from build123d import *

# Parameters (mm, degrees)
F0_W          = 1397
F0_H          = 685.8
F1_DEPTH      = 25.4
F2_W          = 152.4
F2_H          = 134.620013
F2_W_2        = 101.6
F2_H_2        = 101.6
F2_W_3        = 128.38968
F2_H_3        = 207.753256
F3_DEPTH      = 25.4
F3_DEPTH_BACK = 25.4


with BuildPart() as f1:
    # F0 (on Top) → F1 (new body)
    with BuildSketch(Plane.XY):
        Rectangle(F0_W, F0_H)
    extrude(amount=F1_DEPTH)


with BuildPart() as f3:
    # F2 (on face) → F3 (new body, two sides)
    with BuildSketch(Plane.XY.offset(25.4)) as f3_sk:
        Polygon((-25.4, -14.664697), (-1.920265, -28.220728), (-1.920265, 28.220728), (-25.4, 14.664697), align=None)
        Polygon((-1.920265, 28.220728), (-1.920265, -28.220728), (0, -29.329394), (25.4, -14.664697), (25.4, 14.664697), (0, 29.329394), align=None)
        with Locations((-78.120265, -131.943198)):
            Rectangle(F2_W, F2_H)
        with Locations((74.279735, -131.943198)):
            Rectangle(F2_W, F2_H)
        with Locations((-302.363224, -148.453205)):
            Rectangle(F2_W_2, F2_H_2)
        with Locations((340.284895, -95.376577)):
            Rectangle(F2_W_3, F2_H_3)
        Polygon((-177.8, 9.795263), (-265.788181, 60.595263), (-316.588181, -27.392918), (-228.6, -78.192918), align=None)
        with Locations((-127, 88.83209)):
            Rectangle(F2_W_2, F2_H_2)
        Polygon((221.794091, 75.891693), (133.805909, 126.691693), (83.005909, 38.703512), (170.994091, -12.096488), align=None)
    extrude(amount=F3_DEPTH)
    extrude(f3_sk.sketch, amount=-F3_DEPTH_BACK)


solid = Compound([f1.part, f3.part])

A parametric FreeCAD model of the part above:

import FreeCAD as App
import Part
import Sketcher
Q = App.Units.Quantity


def add_polygon(sketch, points):
    """Adds a closed chain of lines whose ends are joined by coincident constraints."""
    first, n = sketch.GeometryCount, len(points)
    for a, b in zip(points, points[1:] + points[:1]):
        sketch.addGeometry(Part.LineSegment(App.Vector(*a, 0), App.Vector(*b, 0)), False)
    for i in range(n):
        sketch.addConstraint(Sketcher.Constraint("Coincident", first + i, 2, first + (i + 1) % n, 1))

doc = App.newDocument("Part")
body = doc.addObject("PartDesign::Body", "Body")

# Sketch on XY plane
sketch1 = doc.addObject("Sketcher::SketchObject", "Sketch")
body.addObject(sketch1)
sketch1.AttachmentSupport = (doc.XY_Plane, [""])
sketch1.MapMode = "FlatFace"
add_polygon(sketch1, [(-698, 343), (-698, -343), (698, -343), (698, 343)])  # lines 0-3
sketch1.addConstraint(Sketcher.Constraint("Vertical", 0))
sketch1.addConstraint(Sketcher.Constraint("Horizontal", 1))
sketch1.addConstraint(Sketcher.Constraint("Vertical", 2))
sketch1.addConstraint(Sketcher.Constraint("Horizontal", 3))
sketch1.addConstraint(Sketcher.Constraint("Symmetric", 0, 2, 2, 2, -1, 1))
sketch1.addConstraint(Sketcher.Constraint("DistanceX", 1, 1, 1, 2, Q("55 in")))
sketch1.addConstraint(Sketcher.Constraint("DistanceY", 0, 2, 0, 1, Q("27 in")))
pad1 = doc.addObject("PartDesign::Pad", "Pad")
body.addObject(pad1)
pad1.Profile = sketch1
pad1.Length = Q("1 in")
body2 = doc.addObject("PartDesign::Body", "Body001")
body2.AllowCompound = True

# Sketch on XY plane
sketch2 = doc.addObject("Sketcher::SketchObject", "Sketch001")
body2.addObject(sketch2)
sketch2.AttachmentSupport = (doc.getObject("XY_Plane001"), [""])
sketch2.MapMode = "FlatFace"
sketch2.AttachmentOffset = App.Placement(App.Vector(0, 0, 1 * 25.4), App.Rotation())
add_polygon(sketch2, [(-25.4, -14.7), (-1.9, -28.2), (0, -29.3), (25.4, -14.7), (25.4, 14.7), (0, 29.3), (-1.9, 28.2), (-25.4, 14.7)])  # lines 0-7
add_polygon(sketch2, [(-154.3, -64.6), (-154.3, -199.3), (150.5, -199.3), (150.5, -64.6)])  # lines 8-11
add_polygon(sketch2, [(-353.2, -97.7), (-353.2, -199.3), (-251.6, -199.3), (-251.6, -97.7)])  # lines 12-15
add_polygon(sketch2, [(276.1, 8.5), (276.1, -199.3), (404.5, -199.3), (404.5, 8.5)])  # lines 16-19
add_polygon(sketch2, [(-177.8, 9.8), (-265.8, 60.6), (-316.6, -27.4), (-228.6, -78.2)])  # lines 20-23
add_polygon(sketch2, [(-177.8, 139.6), (-177.8, 38), (-76.2, 38), (-76.2, 139.6)])  # lines 24-27
add_polygon(sketch2, [(221.8, 75.9), (133.8, 126.7), (83, 38.7), (171, -12.1)])  # lines 28-31
sketch2.addConstraint(Sketcher.Constraint("Vertical", 3))
sketch2.addConstraint(Sketcher.Constraint("Vertical", 7))
sketch2.addConstraint(Sketcher.Constraint("Vertical", 8))
sketch2.addConstraint(Sketcher.Constraint("Horizontal", 9))
sketch2.addConstraint(Sketcher.Constraint("Vertical", 10))
sketch2.addConstraint(Sketcher.Constraint("Horizontal", 11))
sketch2.addConstraint(Sketcher.Constraint("Vertical", 12))
sketch2.addConstraint(Sketcher.Constraint("Horizontal", 13))
sketch2.addConstraint(Sketcher.Constraint("Vertical", 14))
sketch2.addConstraint(Sketcher.Constraint("Horizontal", 15))
sketch2.addConstraint(Sketcher.Constraint("Vertical", 16))
sketch2.addConstraint(Sketcher.Constraint("Horizontal", 17))
sketch2.addConstraint(Sketcher.Constraint("Vertical", 18))
sketch2.addConstraint(Sketcher.Constraint("Horizontal", 19))
sketch2.addConstraint(Sketcher.Constraint("Vertical", 24))
sketch2.addConstraint(Sketcher.Constraint("Horizontal", 25))
sketch2.addConstraint(Sketcher.Constraint("Vertical", 26))
sketch2.addConstraint(Sketcher.Constraint("Horizontal", 27))
sketch2.addConstraint(Sketcher.Constraint("Symmetric", 1, 2, 4, 2, -1, 1))
sketch2.addConstraint(Sketcher.Constraint("Symmetric", 2, 2, 6, 2, -1, 1))
sketch2.addConstraint(Sketcher.Constraint("Symmetric", 0, 2, 5, 2, -1))
sketch2.addConstraint(Sketcher.Constraint("PointOnObject", 1, 2, -2))
sketch2.addConstraint(Sketcher.Constraint("Parallel", 0, 1))
sketch2.addConstraint(Sketcher.Constraint("Parallel", 1, 4))
sketch2.addConstraint(Sketcher.Constraint("Parallel", 2, 5))
sketch2.addConstraint(Sketcher.Constraint("Parallel", 4, 20))
sketch2.addConstraint(Sketcher.Constraint("Perpendicular", 20, 21))
sketch2.addConstraint(Sketcher.Constraint("Perpendicular", 21, 22))
sketch2.addConstraint(Sketcher.Constraint("Perpendicular", 22, 23))
sketch2.addConstraint(Sketcher.Constraint("Perpendicular", 23, 28))
sketch2.addConstraint(Sketcher.Constraint("Perpendicular", 28, 29))
sketch2.addConstraint(Sketcher.Constraint("Perpendicular", 29, 30))
sketch2.addConstraint(Sketcher.Constraint("Perpendicular", 30, 31))
sketch2.addConstraint(Sketcher.Constraint("Horizontal", 9, 2, 12, 2))
sketch2.addConstraint(Sketcher.Constraint("Horizontal", 13, 2, 16, 2))
sketch2.addConstraint(Sketcher.Constraint("Vertical", 23, 2, 24, 2))
sketch2.addConstraint(Sketcher.Constraint("Equal", 15, 25))
sketch2.addConstraint(Sketcher.Constraint("Equal", 27, 12))
sketch2.addConstraint(Sketcher.Constraint("Equal", 14, 24))
sketch2.addConstraint(Sketcher.Constraint("Equal", 20, 21))
sketch2.addConstraint(Sketcher.Constraint("Equal", 23, 28))
sketch2.addConstraint(Sketcher.Constraint("Equal", 28, 29))
sketch2.addConstraint(Sketcher.Constraint("DistanceX", 9, 1, 9, 2, Q("12 in")))
sketch2.addConstraint(Sketcher.Constraint("DistanceX", 13, 1, 13, 2, Q("4 in")))
sketch2.addConstraint(Sketcher.Constraint("Distance", 20, Q("4 in")))
sketch2.addConstraint(Sketcher.Constraint("DistanceX", -1, 1, 2, 2, Q("1 in")))
sketch2.addConstraint(Sketcher.Constraint("DistanceX", 22, 2, -1, 1, Q("9 in")))
sketch2.addConstraint(Sketcher.Constraint("DistanceX", 23, 2, -1, 1, Q("7 in")))
sketch2.addConstraint(Sketcher.Constraint("DistanceX", 8, 2, 0, 2, Q("6 in")))
sketch2.addConstraint(Sketcher.Constraint("DistanceX", 9, 2, 17, 2, Q("10 in")))
sketch2.addConstraint(Sketcher.Constraint("DistanceX", 17, 1, 17, 2, 128.38968))
sketch2.addConstraint(Sketcher.Constraint("DistanceY", 8, 2, 6, 2, 213.917901))
sketch2.addConstraint(Sketcher.Constraint("DistanceY", 4, 2, 28, 2, 97.362299))
sketch2.addConstraint(Sketcher.Constraint("Distance", 1, 2.217331))
sketch2.addConstraint(Sketcher.Constraint("DistanceY", 3, 1, 3, 2, 29.329394))
sketch2.addConstraint(Sketcher.Constraint("DistanceY", 8, 2, 8, 1, 134.620013))
sketch2.addConstraint(Sketcher.Constraint("DistanceY", 16, 2, 16, 1, 207.753256))
sketch2.addConstraint(Sketcher.Constraint("DistanceY", 21, 2, -1, 1, 27.392918))
sketch2.addConstraint(Sketcher.Constraint("DistanceY", -1, 1, 24, 2, 38.03209))
sketch2.addConstraint(Sketcher.Constraint("DistanceX", -1, 1, 28, 2, 133.805909))
sketch2.addConstraint(Sketcher.Constraint("DistanceX", 12, 2, 8, 2, 198.842959))
pad2 = doc.addObject("PartDesign::Pad", "Pad001")
body2.addObject(pad2)
pad2.Profile = sketch2
pad2.Type = "TwoLengths"
pad2.Length = Q("1 in")
pad2.Length2 = Q("1 in")

doc.recompute()
